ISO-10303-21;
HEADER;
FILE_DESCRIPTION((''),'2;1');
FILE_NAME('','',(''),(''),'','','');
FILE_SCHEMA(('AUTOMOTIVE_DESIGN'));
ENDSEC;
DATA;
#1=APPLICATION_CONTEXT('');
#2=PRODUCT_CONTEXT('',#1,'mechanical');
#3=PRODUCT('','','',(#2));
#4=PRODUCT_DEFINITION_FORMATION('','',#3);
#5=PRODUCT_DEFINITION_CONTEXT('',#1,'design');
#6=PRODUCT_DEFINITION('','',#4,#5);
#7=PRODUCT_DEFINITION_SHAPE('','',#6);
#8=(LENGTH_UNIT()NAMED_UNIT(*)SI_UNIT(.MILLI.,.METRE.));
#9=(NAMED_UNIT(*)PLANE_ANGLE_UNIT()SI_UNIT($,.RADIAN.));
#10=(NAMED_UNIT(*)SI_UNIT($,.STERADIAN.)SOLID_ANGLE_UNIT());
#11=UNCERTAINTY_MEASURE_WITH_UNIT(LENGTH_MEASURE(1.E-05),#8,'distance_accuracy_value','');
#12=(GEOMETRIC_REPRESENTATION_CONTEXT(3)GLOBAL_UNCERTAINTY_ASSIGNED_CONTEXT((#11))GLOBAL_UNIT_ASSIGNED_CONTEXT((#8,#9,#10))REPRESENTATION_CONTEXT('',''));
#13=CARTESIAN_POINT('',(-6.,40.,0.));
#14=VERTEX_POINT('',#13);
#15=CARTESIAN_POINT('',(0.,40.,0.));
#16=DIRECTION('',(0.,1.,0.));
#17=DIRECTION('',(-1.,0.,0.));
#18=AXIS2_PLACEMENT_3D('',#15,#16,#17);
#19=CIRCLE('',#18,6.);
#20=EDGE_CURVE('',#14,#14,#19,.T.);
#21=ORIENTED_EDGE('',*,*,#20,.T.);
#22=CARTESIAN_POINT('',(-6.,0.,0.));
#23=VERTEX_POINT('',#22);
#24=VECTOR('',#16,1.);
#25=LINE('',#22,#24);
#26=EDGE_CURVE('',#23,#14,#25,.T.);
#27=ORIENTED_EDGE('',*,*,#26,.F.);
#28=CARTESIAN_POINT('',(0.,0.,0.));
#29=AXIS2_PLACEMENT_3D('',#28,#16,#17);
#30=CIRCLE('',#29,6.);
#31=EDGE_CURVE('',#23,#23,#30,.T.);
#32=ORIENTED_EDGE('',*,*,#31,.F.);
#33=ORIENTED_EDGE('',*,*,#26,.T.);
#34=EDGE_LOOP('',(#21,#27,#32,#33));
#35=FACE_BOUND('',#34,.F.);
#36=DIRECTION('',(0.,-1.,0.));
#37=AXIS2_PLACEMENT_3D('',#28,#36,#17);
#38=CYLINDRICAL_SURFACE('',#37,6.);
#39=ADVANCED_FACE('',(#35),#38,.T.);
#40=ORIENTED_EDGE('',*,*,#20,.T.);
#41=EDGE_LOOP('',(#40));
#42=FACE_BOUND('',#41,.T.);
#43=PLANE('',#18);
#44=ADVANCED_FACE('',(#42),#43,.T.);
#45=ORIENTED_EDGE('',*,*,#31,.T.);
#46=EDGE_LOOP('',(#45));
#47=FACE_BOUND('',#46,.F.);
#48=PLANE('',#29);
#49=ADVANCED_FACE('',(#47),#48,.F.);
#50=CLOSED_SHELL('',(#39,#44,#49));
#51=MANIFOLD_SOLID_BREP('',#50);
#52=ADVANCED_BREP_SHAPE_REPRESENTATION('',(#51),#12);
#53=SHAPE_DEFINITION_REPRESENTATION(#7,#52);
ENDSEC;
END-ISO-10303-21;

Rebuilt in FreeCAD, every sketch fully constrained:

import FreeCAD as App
import Part
import Sketcher
Q = App.Units.Quantity

doc = App.newDocument("Part")
body = doc.addObject("PartDesign::Body", "Body")

# Sketch on XZ plane
sketch1 = body.newObject("Sketcher::SketchObject", "Sketch")
sketch1.AttachmentSupport = (doc.getObject("XZ_Plane"), [""])
sketch1.MapMode = "FlatFace"
sketch1.addGeometry(Part.Circle(App.Vector(0, 0, 0), App.Vector(0, 0, 1), 6), False)
sketch1.addConstraint([
    Sketcher.Constraint("Coincident", 0, 3, -1, 1),
    Sketcher.Constraint("Diameter", 0, Q("12 mm")),
])
pad1 = body.newObject("PartDesign::Pad", "Pad")
pad1.Profile = sketch1
pad1.Length = 40
pad1.Reversed = True

doc.recompute()
